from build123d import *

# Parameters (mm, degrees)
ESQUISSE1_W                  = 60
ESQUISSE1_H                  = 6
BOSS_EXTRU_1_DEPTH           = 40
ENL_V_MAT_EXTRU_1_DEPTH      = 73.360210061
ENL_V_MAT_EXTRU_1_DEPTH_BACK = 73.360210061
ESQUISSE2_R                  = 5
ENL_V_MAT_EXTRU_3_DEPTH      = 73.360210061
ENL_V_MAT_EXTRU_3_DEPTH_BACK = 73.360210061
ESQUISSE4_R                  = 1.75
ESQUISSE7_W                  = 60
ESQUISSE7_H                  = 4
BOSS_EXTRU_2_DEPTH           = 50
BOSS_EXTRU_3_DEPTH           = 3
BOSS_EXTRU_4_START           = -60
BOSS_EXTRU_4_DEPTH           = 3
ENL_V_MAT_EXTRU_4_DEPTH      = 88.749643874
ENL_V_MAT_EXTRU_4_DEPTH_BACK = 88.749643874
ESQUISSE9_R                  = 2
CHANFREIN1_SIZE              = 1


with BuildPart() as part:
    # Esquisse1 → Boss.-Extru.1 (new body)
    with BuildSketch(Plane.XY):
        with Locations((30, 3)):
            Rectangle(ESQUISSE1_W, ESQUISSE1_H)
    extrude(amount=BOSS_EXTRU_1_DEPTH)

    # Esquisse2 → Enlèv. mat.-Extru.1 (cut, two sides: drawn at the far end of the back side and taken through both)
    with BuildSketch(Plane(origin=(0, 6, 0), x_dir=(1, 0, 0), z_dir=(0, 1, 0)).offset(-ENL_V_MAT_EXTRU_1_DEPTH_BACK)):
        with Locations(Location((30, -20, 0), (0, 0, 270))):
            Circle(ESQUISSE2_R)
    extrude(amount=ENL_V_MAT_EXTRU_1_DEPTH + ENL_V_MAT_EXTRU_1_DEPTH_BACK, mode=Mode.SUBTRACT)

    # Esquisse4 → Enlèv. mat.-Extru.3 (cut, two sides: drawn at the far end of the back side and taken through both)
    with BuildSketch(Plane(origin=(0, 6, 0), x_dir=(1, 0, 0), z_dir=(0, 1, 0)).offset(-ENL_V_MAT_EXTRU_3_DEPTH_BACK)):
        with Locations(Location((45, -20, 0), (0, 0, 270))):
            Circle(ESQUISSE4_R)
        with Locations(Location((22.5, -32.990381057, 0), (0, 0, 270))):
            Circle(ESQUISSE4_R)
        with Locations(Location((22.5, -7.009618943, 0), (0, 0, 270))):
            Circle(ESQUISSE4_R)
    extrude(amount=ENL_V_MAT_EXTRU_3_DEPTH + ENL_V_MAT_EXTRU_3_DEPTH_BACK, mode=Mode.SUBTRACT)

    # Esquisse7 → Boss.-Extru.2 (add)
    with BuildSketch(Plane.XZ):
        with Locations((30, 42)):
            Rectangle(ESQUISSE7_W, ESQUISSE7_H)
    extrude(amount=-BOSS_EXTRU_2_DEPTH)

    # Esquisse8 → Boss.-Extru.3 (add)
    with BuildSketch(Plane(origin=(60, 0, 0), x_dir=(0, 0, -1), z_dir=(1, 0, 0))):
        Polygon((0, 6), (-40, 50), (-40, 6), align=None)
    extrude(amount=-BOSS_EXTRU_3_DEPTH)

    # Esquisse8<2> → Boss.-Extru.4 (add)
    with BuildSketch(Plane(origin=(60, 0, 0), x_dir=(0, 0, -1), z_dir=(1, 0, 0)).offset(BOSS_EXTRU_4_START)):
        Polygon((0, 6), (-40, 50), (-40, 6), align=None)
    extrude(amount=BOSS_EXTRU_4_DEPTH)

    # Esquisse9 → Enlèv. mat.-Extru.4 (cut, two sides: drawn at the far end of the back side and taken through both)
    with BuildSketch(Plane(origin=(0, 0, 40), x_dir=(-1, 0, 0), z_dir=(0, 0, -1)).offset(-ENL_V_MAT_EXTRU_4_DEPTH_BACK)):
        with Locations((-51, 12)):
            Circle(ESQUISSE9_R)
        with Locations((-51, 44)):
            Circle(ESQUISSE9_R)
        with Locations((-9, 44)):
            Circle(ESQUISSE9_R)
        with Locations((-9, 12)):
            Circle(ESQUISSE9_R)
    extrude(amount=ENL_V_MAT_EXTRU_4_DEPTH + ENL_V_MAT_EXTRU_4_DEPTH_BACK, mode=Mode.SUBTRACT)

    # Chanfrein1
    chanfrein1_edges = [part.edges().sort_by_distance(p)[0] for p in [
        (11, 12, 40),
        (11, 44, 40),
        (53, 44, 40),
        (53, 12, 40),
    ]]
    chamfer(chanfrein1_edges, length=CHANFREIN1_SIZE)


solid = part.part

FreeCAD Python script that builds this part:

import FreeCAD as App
import Part
import Sketcher
Q = App.Units.Quantity


def edges_at(feature, points):
    """Names of the edges that pass closest to the given points."""
    edges = feature.Shape.Edges
    near = lambda p: min(range(len(edges)), key=lambda i: edges[i].distToShape(Part.Vertex(*p))[0])
    return sorted({f"Edge{near(p) + 1}" for p in points})


def add_polygon(sketch, points):
    """Adds a closed chain of lines whose ends are joined by coincident constraints."""
    first, n = sketch.GeometryCount, len(points)
    for a, b in zip(points, points[1:] + points[:1]):
        sketch.addGeometry(Part.LineSegment(App.Vector(*a, 0), App.Vector(*b, 0)), False)
    for i in range(n):
        sketch.addConstraint(Sketcher.Constraint("Coincident", first + i, 2, first + (i + 1) % n, 1))

doc = App.newDocument("Part")
body = doc.addObject("PartDesign::Body", "Body")

# Sketch on XY plane
sketch1 = body.newObject("Sketcher::SketchObject", "Sketch")
sketch1.AttachmentSupport = (doc.getObject("XY_Plane"), [""])
sketch1.MapMode = "FlatFace"
add_polygon(sketch1, [(0, 6), (0, 0), (60, 0), (60, 6)])  # lines 0-3
sketch1.addConstraint([
    Sketcher.Constraint("Vertical", 0),
    Sketcher.Constraint("Horizontal", 1),
    Sketcher.Constraint("Vertical", 2),
    Sketcher.Constraint("Horizontal", 3),
    Sketcher.Constraint("Coincident", 0, 2, -1, 1),
    Sketcher.Constraint("DistanceX", 1, 1, 1, 2, Q("60 mm")),
    Sketcher.Constraint("DistanceY", 0, 2, 0, 1, Q("6 mm")),
])
pad1 = body.newObject("PartDesign::Pad", "Pad")
pad1.Profile = sketch1
pad1.Length = 40

# Sketch on XZ plane
sketch2 = body.newObject("Sketcher::SketchObject", "Sketch001")
sketch2.AttachmentSupport = (doc.getObject("XZ_Plane"), [""])
sketch2.MapMode = "FlatFace"
sketch2.AttachmentOffset = App.Placement(App.Vector(0, 0, -6), App.Rotation())
sketch2.addGeometry(Part.Circle(App.Vector(30, 20, 0), App.Vector(0, 0, 1), 5), False)
sketch2.addConstraint([
    Sketcher.Constraint("Diameter", 0, Q("10 mm")),
    Sketcher.Constraint("DistanceX", -1, 1, 0, 3, Q("30 mm")),
    Sketcher.Constraint("DistanceY", -1, 1, 0, 3, Q("20 mm")),
])
pocket1 = body.newObject("PartDesign::Pocket", "Pocket")
pocket1.Profile = sketch2
pocket1.Type = "ThroughAll"
pocket1.Midplane = True

# Sketch on XZ plane
sketch3 = body.newObject("Sketcher::SketchObject", "Sketch002")
sketch3.AttachmentSupport = (doc.getObject("XZ_Plane"), [""])
sketch3.MapMode = "FlatFace"
sketch3.AttachmentOffset = App.Placement(App.Vector(0, 0, -6), App.Rotation())
sketch3.addGeometry([
    Part.Circle(App.Vector(45, 20, 0), App.Vector(0, 0, 1), 1.8),
    Part.Circle(App.Vector(22.5, 33, 0), App.Vector(0, 0, 1), 1.8),
    Part.Circle(App.Vector(22.5, 7, 0), App.Vector(0, 0, 1), 1.8),
], False)
sketch3.addConstraint([
    Sketcher.Constraint("Equal", 0, 1),
    Sketcher.Constraint("Equal", 1, 2),
    Sketcher.Constraint("Vertical", 1, 3, 2, 3),
    Sketcher.Constraint("Diameter", 0, Q("3.5 mm")),
    Sketcher.Constraint("DistanceX", -1, 1, 0, 3, Q("45 mm")),
    Sketcher.Constraint("DistanceY", -1, 1, 0, 3, Q("20 mm")),
    Sketcher.Constraint("DistanceX", -1, 1, 1, 3, Q("22.5 mm")),
    Sketcher.Constraint("DistanceY", -1, 1, 1, 3, Q("32.990381 mm")),
    Sketcher.Constraint("DistanceY", -1, 1, 2, 3, Q("7.009619 mm")),
])
pocket2 = body.newObject("PartDesign::Pocket", "Pocket001")
pocket2.Profile = sketch3
pocket2.Type = "ThroughAll"
pocket2.Midplane = True

# Sketch on XZ plane
sketch4 = body.newObject("Sketcher::SketchObject", "Sketch003")
sketch4.AttachmentSupport = (doc.getObject("XZ_Plane"), [""])
sketch4.MapMode = "FlatFace"
add_polygon(sketch4, [(0, 44), (0, 40), (60, 40), (60, 44)])  # lines 0-3
sketch4.addConstraint([
    Sketcher.Constraint("Vertical", 0),
    Sketcher.Constraint("Horizontal", 1),
    Sketcher.Constraint("Vertical", 2),
    Sketcher.Constraint("Horizontal", 3),
    Sketcher.Constraint("PointOnObject", 0, 2, -2),
    Sketcher.Constraint("DistanceX", 1, 1, 1, 2, Q("60 mm")),
    Sketcher.Constraint("DistanceY", 0, 2, 0, 1, Q("4 mm")),
    Sketcher.Constraint("DistanceY", -1, 1, 0, 2, Q("40 mm")),
])
pad2 = body.newObject("PartDesign::Pad", "Pad001")
pad2.Profile = sketch4
pad2.Length = 50
pad2.Reversed = True

# Sketch on YZ plane
sketch5 = body.newObject("Sketcher::SketchObject", "Sketch004")
sketch5.AttachmentSupport = (doc.getObject("YZ_Plane"), [""])
sketch5.MapMode = "FlatFace"
sketch5.AttachmentOffset = App.Placement(App.Vector(0, 0, 60), App.Rotation())
add_polygon(sketch5, [(6, 0), (50, 40), (6, 40)])  # lines 0-2
sketch5.addConstraint([
    Sketcher.Constraint("Horizontal", 1),
    Sketcher.Constraint("Vertical", 2),
    Sketcher.Constraint("PointOnObject", 2, 2, -1),
    Sketcher.Constraint("DistanceX", 1, 2, 1, 1, Q("44 mm")),
    Sketcher.Constraint("DistanceY", 2, 2, 2, 1, Q("40 mm")),
    Sketcher.Constraint("DistanceX", -1, 1, 0, 2, Q("50 mm")),
])
pad3 = body.newObject("PartDesign::Pad", "Pad002")
pad3.Profile = sketch5
pad3.Length = 3
pad3.Reversed = True

# Sketch on YZ plane
sketch6 = body.newObject("Sketcher::SketchObject", "Sketch005")
sketch6.AttachmentSupport = (doc.getObject("YZ_Plane"), [""])
sketch6.MapMode = "FlatFace"
add_polygon(sketch6, [(6, 0), (50, 40), (6, 40)])  # lines 0-2
sketch6.addConstraint([
    Sketcher.Constraint("Horizontal", 1),
    Sketcher.Constraint("Vertical", 2),
    Sketcher.Constraint("PointOnObject", 2, 2, -1),
    Sketcher.Constraint("DistanceX", 1, 2, 1, 1, Q("44 mm")),
    Sketcher.Constraint("DistanceY", 2, 2, 2, 1, Q("40 mm")),
    Sketcher.Constraint("DistanceX", -1, 1, 0, 2, Q("50 mm")),
])
pad4 = body.newObject("PartDesign::Pad", "Pad003")
pad4.Profile = sketch6
pad4.Length = 3

# Sketch on XY plane
sketch7 = body.newObject("Sketcher::SketchObject", "Sketch006")
sketch7.AttachmentSupport = (doc.getObject("XY_Plane"), [""])
sketch7.MapMode = "FlatFace"
sketch7.AttachmentOffset = App.Placement(App.Vector(0, 0, 40), App.Rotation())
sketch7.addGeometry([
    Part.Circle(App.Vector(51, 12, 0), App.Vector(0, 0, 1), 2),
    Part.Circle(App.Vector(51, 44, 0), App.Vector(0, 0, 1), 2),
    Part.Circle(App.Vector(9, 44, 0), App.Vector(0, 0, 1), 2),
    Part.Circle(App.Vector(9, 12, 0), App.Vector(0, 0, 1), 2),
], False)
sketch7.addConstraint([
    Sketcher.Constraint("Equal", 0, 1),
    Sketcher.Constraint("Equal", 1, 2),
    Sketcher.Constraint("Equal", 2, 3),
    Sketcher.Constraint("Horizontal", 1, 3, 2, 3),
    Sketcher.Constraint("Horizontal", 0, 3, 3, 3),
    Sketcher.Constraint("Vertical", 0, 3, 1, 3),
    Sketcher.Constraint("Vertical", 2, 3, 3, 3),
    Sketcher.Constraint("Diameter", 0, Q("4 mm")),
    Sketcher.Constraint("DistanceX", -1, 1, 0, 3, Q("51 mm")),
    Sketcher.Constraint("DistanceY", -1, 1, 0, 3, Q("12 mm")),
    Sketcher.Constraint("DistanceY", -1, 1, 1, 3, Q("44 mm")),
    Sketcher.Constraint("DistanceX", -1, 1, 2, 3, Q("9 mm")),
])
pocket3 = body.newObject("PartDesign::Pocket", "Pocket002")
pocket3.Profile = sketch7
pocket3.Type = "ThroughAll"
pocket3.Midplane = True
doc.recompute()

chamfer = body.newObject("PartDesign::Chamfer", "Chamfer")
chamfer.Base = (pocket3, edges_at(pocket3, [
    (11, 12, 40),
    (11, 44, 40),
    (53, 44, 40),
    (53, 12, 40),
]))
chamfer.Size = 1

doc.recompute()
